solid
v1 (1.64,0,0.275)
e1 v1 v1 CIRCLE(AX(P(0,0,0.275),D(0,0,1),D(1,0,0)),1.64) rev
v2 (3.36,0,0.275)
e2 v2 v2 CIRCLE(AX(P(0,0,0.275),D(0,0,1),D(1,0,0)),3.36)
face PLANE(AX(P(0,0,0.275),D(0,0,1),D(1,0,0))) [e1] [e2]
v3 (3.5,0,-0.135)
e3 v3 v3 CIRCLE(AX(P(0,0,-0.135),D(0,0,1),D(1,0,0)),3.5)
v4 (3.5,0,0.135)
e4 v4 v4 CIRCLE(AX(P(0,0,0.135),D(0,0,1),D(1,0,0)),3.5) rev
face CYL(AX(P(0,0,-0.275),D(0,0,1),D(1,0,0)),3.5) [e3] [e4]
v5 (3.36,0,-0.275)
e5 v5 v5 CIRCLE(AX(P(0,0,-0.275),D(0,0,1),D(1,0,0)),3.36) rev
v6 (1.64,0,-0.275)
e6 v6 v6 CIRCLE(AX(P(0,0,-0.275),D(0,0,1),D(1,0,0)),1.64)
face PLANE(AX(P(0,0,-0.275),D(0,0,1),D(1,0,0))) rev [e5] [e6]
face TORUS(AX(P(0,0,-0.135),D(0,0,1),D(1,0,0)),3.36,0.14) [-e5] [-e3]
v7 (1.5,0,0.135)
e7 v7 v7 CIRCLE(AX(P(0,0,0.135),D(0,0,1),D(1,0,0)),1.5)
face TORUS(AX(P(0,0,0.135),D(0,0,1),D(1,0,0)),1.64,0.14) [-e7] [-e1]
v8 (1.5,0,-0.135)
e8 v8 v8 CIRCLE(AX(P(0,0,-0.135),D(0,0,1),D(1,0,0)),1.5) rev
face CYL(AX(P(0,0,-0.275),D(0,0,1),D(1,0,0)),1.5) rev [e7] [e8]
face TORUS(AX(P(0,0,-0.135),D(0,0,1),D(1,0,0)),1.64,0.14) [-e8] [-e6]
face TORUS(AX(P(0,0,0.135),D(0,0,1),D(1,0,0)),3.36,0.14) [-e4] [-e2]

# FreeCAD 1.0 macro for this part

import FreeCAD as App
import Part
import Sketcher

V = App.Vector
Q = App.Units.Quantity


def edges_at(feature, points):
    """Names of the edges that pass closest to the given points."""
    edges = feature.Shape.Edges
    near = lambda p: min(range(len(edges)), key=lambda i: edges[i].distToShape(Part.Vertex(*p))[0])
    return sorted({f"Edge{near(p) + 1}" for p in points})

doc = App.newDocument("Part")
body = doc.addObject("PartDesign::Body", "Body")

# Sketch on XY plane
sketch1 = body.newObject("Sketcher::SketchObject", "Sketch")
sketch1.AttachmentSupport = (doc.getObject("XY_Plane"), [""])
sketch1.MapMode = "FlatFace"
sketch1.addGeometry(Part.Circle(V(0, 0, 0), V(0, 0, 1), 3.5), False)
sketch1.addGeometry(Part.Circle(V(0, 0, 0), V(0, 0, 1), 1.5), False)
sketch1.addConstraint(Sketcher.Constraint("Coincident", 0, 3, -1, 1))
sketch1.addConstraint(Sketcher.Constraint("Coincident", 1, 3, -1, 1))
sketch1.addConstraint(Sketcher.Constraint("Diameter", 0, Q("7 mm")))
sketch1.addConstraint(Sketcher.Constraint("Diameter", 1, Q("3 mm")))
pad1 = body.newObject("PartDesign::Pad", "Pad")
pad1.Profile = sketch1
pad1.Type = "TwoLengths"
pad1.Length = 0.275
pad1.Length2 = 0.275
doc.recompute()

fillet = body.newObject("PartDesign::Fillet", "Fillet")
fillet.Base = (pad1, edges_at(pad1, [
    (-3.5, 0, -0.275),
    (-1.5, 0, -0.275),
    (-3.5, 0, 0.275),
    (-1.5, 0, 0.275),
]))
fillet.Radius = 0.14

doc.recompute()
